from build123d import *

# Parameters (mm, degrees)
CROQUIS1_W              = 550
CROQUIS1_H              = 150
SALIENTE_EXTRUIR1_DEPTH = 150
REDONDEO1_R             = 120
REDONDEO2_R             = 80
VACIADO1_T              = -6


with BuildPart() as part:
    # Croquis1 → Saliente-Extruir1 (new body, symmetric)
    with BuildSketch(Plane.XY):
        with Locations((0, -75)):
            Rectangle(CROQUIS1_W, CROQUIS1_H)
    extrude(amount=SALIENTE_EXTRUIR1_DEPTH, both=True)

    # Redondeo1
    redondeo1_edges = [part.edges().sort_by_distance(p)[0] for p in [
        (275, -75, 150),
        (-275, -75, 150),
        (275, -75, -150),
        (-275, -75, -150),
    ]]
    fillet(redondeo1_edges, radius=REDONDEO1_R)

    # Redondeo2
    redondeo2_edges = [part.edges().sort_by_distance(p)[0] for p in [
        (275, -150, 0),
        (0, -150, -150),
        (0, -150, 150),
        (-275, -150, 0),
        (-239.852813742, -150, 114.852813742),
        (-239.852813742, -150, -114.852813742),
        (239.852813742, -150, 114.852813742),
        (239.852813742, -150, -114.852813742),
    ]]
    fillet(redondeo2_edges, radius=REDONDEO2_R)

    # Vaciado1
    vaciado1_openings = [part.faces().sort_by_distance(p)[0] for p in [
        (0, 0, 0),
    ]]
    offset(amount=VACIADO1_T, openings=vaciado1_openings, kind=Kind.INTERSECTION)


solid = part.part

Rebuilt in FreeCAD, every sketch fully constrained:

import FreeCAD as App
import Part
import Sketcher
from FreeCAD import Vector
Q = App.Units.Quantity


def edges_at(feature, points):
    """Names of the edges that pass closest to the given points."""
    edges = feature.Shape.Edges
    near = lambda p: min(range(len(edges)), key=lambda i: edges[i].distToShape(Part.Vertex(*p))[0])
    return sorted({f"Edge{near(p) + 1}" for p in points})


def faces_at(feature, points):
    """Names of the faces that lie closest to the given points."""
    faces = feature.Shape.Faces
    near = lambda p: min(range(len(faces)), key=lambda i: faces[i].distToShape(Part.Vertex(*p))[0])
    return sorted({f"Face{near(p) + 1}" for p in points})


def add_polygon(sketch, points):
    """Adds a closed chain of lines whose ends are joined by coincident constraints."""
    first, n = sketch.GeometryCount, len(points)
    for a, b in zip(points, points[1:] + points[:1]):
        sketch.addGeometry(Part.LineSegment(App.Vector(*a, 0), App.Vector(*b, 0)), False)
    for i in range(n):
        sketch.addConstraint(Sketcher.Constraint("Coincident", first + i, 2, first + (i + 1) % n, 1))

doc = App.newDocument("Part")
body = doc.addObject("PartDesign::Body", "Body")

sketch1 = body.newObject("Sketcher::SketchObject", "Sketch")
sketch1.AttachmentSupport = (doc.getObject("XY_Plane"), [""])
sketch1.MapMode = "FlatFace"
add_polygon(sketch1, [(-275, 0), (-275, -150), (275, -150), (275, 0)])
sketch1.addConstraint(Sketcher.Constraint("Vertical", 0))
sketch1.addConstraint(Sketcher.Constraint("Horizontal", 1))
sketch1.addConstraint(Sketcher.Constraint("Vertical", 2))
sketch1.addConstraint(Sketcher.Constraint("Horizontal", 3))
sketch1.addConstraint(Sketcher.Constraint("Symmetric", 2, 2, 3, 2, -1, 1))
sketch1.addConstraint(Sketcher.Constraint("DistanceX", 1, 1, 1, 2, Q("550 mm")))
sketch1.addConstraint(Sketcher.Constraint("DistanceY", 0, 2, 0, 1, Q("150 mm")))
pad1 = body.newObject("PartDesign::Pad", "Pad")
pad1.Profile = sketch1
pad1.Length = 300
pad1.Midplane = True
doc.recompute()

fillet = body.newObject("PartDesign::Fillet", "Fillet")
fillet.Base = (pad1, edges_at(pad1, [
    (275, -75, 150),
    (-275, -75, 150),
    (275, -75, -150),
    (-275, -75, -150),
]))
fillet.Radius = 120
doc.recompute()

fillet2 = body.newObject("PartDesign::Fillet", "Fillet001")
fillet2.Base = (fillet, edges_at(fillet, [
    (275, -150, 0),
    (0, -150, -150),
    (0, -150, 150),
    (-275, -150, 0),
    (-239.853, -150, 114.853),
    (-239.853, -150, -114.853),
    (239.853, -150, 114.853),
    (239.853, -150, -114.853),
]))
fillet2.Radius = 80
doc.recompute()

thickness = body.newObject("PartDesign::Thickness", "Thickness")
thickness.Base = (fillet2, faces_at(fillet2, [(0, 0, 0)]))
thickness.Value = 6
thickness.Reversed = True
thickness.Join = "Intersection"

doc.recompute()
